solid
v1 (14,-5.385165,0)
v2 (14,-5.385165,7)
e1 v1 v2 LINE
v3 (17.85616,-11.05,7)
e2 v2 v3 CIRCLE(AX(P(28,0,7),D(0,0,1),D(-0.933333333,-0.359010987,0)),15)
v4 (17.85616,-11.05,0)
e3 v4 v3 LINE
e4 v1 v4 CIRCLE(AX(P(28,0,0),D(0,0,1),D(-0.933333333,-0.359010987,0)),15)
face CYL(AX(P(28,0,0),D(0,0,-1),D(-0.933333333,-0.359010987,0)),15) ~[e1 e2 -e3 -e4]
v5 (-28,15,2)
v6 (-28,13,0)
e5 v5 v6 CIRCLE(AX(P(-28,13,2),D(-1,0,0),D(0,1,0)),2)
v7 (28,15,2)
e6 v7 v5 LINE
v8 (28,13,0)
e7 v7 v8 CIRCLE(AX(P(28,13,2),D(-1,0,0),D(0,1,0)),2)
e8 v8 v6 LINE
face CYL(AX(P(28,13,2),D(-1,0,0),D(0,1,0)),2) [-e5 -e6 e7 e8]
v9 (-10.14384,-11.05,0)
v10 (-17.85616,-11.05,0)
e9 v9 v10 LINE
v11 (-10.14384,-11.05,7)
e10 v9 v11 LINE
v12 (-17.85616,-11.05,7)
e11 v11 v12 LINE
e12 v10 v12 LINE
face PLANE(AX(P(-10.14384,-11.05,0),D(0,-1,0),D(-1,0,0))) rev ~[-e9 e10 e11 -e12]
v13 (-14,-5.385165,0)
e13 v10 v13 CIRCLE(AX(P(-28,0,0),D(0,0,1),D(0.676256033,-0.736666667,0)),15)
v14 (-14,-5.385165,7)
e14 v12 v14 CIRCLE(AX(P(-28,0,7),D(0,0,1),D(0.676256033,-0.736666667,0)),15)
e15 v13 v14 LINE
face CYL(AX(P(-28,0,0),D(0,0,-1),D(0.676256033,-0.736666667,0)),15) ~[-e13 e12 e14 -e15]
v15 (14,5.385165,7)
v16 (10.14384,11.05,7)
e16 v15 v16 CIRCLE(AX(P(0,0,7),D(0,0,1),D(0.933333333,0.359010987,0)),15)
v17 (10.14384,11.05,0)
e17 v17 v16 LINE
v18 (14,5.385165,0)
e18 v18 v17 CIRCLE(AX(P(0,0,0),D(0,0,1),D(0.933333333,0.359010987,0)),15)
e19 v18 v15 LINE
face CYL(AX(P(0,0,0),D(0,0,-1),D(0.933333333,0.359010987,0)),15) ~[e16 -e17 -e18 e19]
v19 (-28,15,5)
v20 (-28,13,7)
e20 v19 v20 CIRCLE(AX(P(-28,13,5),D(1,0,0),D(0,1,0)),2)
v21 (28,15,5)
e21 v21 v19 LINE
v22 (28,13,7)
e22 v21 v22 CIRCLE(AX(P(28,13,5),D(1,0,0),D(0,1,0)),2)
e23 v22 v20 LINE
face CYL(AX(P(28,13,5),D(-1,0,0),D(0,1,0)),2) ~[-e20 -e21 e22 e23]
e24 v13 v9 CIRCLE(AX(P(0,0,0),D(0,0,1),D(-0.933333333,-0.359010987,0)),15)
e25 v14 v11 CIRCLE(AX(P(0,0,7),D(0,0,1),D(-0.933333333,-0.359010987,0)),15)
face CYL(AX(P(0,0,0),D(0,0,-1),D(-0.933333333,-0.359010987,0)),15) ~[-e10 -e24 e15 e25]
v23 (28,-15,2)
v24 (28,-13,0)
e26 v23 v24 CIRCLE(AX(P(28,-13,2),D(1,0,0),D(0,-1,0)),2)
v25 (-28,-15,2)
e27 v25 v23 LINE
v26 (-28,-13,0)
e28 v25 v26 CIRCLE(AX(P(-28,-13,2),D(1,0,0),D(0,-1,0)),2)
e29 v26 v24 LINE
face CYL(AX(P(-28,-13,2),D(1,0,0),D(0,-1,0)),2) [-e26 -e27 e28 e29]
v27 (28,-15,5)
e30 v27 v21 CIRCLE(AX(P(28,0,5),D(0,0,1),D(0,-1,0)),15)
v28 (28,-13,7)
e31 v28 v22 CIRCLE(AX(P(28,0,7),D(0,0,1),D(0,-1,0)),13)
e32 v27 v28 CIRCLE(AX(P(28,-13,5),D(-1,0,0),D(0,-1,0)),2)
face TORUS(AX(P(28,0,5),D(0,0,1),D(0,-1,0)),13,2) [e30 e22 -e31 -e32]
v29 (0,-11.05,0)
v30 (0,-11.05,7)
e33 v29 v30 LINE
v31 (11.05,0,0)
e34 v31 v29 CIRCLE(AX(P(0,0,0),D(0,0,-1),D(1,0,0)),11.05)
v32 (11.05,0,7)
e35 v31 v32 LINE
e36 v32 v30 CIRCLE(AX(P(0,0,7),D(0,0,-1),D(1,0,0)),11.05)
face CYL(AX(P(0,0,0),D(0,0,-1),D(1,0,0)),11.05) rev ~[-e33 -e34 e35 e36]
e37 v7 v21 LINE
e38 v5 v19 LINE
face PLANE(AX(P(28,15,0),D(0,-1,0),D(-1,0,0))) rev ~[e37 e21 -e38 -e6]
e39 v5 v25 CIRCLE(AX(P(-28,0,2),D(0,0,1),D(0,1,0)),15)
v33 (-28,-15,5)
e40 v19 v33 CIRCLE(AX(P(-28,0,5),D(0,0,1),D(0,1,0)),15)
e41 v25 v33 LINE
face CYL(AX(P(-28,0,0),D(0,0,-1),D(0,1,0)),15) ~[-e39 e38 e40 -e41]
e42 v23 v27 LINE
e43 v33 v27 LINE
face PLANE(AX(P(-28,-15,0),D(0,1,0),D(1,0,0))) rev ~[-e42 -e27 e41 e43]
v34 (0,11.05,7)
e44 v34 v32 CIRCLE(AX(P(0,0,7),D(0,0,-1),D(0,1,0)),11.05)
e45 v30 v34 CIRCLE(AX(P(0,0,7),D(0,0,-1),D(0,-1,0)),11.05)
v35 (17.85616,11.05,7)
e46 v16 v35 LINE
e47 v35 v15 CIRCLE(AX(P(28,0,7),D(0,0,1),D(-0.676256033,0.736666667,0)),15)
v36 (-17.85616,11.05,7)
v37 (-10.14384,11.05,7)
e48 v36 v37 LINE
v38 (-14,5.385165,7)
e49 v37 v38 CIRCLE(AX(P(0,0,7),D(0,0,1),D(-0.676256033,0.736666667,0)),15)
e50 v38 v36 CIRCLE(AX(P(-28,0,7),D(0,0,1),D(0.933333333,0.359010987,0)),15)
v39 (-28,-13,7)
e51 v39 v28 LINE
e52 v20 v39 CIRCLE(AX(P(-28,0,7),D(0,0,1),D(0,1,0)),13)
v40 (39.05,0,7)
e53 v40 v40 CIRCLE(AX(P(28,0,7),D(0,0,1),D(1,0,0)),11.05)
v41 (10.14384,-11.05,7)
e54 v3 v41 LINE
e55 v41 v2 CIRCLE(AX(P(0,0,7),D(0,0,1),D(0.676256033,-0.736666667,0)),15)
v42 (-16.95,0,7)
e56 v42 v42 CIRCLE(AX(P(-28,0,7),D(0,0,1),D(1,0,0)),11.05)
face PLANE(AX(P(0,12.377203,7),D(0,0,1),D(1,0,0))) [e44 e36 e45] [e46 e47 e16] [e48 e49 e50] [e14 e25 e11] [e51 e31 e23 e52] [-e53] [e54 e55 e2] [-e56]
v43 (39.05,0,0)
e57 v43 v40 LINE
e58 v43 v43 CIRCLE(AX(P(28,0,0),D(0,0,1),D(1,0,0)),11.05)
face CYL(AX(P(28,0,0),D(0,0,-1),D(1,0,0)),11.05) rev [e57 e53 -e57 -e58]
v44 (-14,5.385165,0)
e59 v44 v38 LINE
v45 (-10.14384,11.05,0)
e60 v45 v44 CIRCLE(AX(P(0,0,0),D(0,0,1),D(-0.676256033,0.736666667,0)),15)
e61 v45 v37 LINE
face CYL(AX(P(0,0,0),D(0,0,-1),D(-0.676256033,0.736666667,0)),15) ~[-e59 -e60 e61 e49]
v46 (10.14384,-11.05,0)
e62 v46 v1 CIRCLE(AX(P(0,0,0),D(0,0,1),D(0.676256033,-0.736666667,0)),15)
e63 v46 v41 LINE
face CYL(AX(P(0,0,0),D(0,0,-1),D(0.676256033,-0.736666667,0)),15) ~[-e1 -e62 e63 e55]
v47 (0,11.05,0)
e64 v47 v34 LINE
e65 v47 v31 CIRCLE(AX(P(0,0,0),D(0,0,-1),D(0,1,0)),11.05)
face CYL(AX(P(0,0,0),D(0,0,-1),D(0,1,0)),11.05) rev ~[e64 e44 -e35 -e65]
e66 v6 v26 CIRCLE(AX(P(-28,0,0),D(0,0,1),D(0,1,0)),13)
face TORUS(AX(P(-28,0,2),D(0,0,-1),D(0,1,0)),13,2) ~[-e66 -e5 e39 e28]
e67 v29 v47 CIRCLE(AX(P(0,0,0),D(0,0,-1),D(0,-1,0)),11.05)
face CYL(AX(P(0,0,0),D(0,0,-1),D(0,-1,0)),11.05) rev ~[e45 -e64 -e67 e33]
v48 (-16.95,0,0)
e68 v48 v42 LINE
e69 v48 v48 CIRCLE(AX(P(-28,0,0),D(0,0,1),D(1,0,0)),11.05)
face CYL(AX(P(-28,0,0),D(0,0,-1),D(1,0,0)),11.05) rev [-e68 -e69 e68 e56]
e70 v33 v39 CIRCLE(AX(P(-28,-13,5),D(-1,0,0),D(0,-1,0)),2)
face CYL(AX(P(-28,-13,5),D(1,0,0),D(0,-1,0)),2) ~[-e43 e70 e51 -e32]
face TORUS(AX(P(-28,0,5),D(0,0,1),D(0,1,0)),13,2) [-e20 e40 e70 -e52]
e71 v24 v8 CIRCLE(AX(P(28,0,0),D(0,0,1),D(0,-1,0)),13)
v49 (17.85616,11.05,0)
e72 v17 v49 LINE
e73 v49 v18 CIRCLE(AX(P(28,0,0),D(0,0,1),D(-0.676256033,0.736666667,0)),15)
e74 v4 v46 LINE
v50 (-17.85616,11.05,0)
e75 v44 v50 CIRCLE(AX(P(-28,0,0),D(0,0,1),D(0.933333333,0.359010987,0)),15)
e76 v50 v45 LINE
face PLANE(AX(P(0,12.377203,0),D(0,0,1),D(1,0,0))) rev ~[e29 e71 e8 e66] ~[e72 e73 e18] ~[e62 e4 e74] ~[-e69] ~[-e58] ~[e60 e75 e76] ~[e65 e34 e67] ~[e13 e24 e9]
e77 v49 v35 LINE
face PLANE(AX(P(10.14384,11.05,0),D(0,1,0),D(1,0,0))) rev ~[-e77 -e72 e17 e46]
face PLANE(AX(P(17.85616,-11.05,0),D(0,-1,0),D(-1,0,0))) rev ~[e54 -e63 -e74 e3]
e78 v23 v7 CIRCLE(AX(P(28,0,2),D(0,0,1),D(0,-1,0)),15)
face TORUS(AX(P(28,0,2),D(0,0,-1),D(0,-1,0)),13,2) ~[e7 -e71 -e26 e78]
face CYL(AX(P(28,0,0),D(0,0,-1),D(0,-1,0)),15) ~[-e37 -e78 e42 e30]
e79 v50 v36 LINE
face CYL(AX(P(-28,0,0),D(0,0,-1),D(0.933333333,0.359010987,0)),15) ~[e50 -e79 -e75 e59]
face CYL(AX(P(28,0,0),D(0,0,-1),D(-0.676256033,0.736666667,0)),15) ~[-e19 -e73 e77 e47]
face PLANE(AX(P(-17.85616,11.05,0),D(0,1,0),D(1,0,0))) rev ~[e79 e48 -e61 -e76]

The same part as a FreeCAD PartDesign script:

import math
import FreeCAD as App
import Part
import Sketcher
from FreeCAD import Vector


def edges_at(feature, points):
    """Names of the edges that pass closest to the given points."""
    edges = feature.Shape.Edges
    near = lambda p: min(range(len(edges)), key=lambda i: edges[i].distToShape(Part.Vertex(*p))[0])
    return sorted({f"Edge{near(p) + 1}" for p in points})

doc = App.newDocument("Part")
body = doc.addObject("PartDesign::Body", "Body")

sketch1 = body.newObject("Sketcher::SketchObject", "Sketch")
sketch1.AttachmentSupport = (doc.getObject("XY_Plane"), [""])
sketch1.MapMode = "FlatFace"
sketch1.addGeometry([
    Part.LineSegment(Vector(28, 15, 0), Vector(-28, 15, 0)),
    Part.ArcOfCircle(Part.Circle(Vector(-28, 0, 0), Vector(0, 0, 1), 15), math.radians(90), math.radians(270)),
    Part.LineSegment(Vector(-28, -15, 0), Vector(28, -15, 0)),
    Part.ArcOfCircle(Part.Circle(Vector(28, 0, 0), Vector(0, 0, 1), 15), math.radians(-90), math.radians(90)),
    Part.LineSegment(Vector(-10.14384, -11.05, 0), Vector(-17.85616, -11.05, 0)),
    Part.ArcOfCircle(Part.Circle(Vector(-28, 0, 0), Vector(0, 0, 1), 15), math.radians(-47.448236), math.radians(-21.03947)),
    Part.ArcOfCircle(Part.Circle(Vector(0, 0, 0), Vector(0, 0, 1), 15), math.radians(-158.96053), math.radians(-132.551764)),
    Part.ArcOfCircle(Part.Circle(Vector(0, 0, 0), Vector(0, 0, 1), 15), math.radians(-47.448236), math.radians(-21.03947)),
    Part.ArcOfCircle(Part.Circle(Vector(28, 0, 0), Vector(0, 0, 1), 15), math.radians(-158.96053), math.radians(-132.551764)),
    Part.LineSegment(Vector(17.85616, -11.05, 0), Vector(10.14384, -11.05, 0)),
    Part.Circle(Vector(-28, 0, 0), Vector(0, 0, 1), 11.05),
    Part.LineSegment(Vector(-17.85616, 11.05, 0), Vector(-10.14384, 11.05, 0)),
    Part.ArcOfCircle(Part.Circle(Vector(0, 0, 0), Vector(0, 0, 1), 15), math.radians(132.551764), math.radians(158.96053)),
    Part.ArcOfCircle(Part.Circle(Vector(-28, 0, 0), Vector(0, 0, 1), 15), math.radians(21.03947), math.radians(47.448236)),
    Part.ArcOfCircle(Part.Circle(Vector(0, 0, 0), Vector(0, 0, 1), 11.05), math.radians(90), math.radians(270)),
    Part.ArcOfCircle(Part.Circle(Vector(0, 0, 0), Vector(0, 0, 1), 11.05), math.radians(0), math.radians(90)),
    Part.ArcOfCircle(Part.Circle(Vector(0, 0, 0), Vector(0, 0, 1), 11.05), math.radians(-90), math.radians(0)),
    Part.Circle(Vector(28, 0, 0), Vector(0, 0, 1), 11.05),
    Part.ArcOfCircle(Part.Circle(Vector(28, 0, 0), Vector(0, 0, 1), 15), math.radians(132.551764), math.radians(158.96053)),
    Part.ArcOfCircle(Part.Circle(Vector(0, 0, 0), Vector(0, 0, 1), 15), math.radians(21.03947), math.radians(47.448236)),
    Part.LineSegment(Vector(10.14384, 11.05, 0), Vector(17.85616, 11.05, 0)),
], False)
sketch1.addConstraint([
    Sketcher.Constraint("Tangent", 0, 2, 1, 1),
    Sketcher.Constraint("Tangent", 1, 2, 2, 1),
    Sketcher.Constraint("Tangent", 2, 2, 3, 1),
    Sketcher.Constraint("Tangent", 3, 2, 0, 1),
    Sketcher.Constraint("Coincident", 4, 2, 5, 1),
    Sketcher.Constraint("Coincident", 5, 2, 6, 1),
    Sketcher.Constraint("Coincident", 6, 2, 4, 1),
    Sketcher.Constraint("Coincident", 7, 2, 8, 1),
    Sketcher.Constraint("Coincident", 8, 2, 9, 1),
    Sketcher.Constraint("Coincident", 9, 2, 7, 1),
    Sketcher.Constraint("Coincident", 11, 2, 12, 1),
    Sketcher.Constraint("Coincident", 12, 2, 13, 1),
    Sketcher.Constraint("Coincident", 13, 2, 11, 1),
    Sketcher.Constraint("Tangent", 14, 1, 15, 2),
    Sketcher.Constraint("Tangent", 15, 1, 16, 2),
    Sketcher.Constraint("Tangent", 16, 1, 14, 2),
    Sketcher.Constraint("Coincident", 18, 2, 19, 1),
    Sketcher.Constraint("Coincident", 19, 2, 20, 1),
    Sketcher.Constraint("Coincident", 20, 2, 18, 1),
    Sketcher.Constraint("Horizontal", 0),
    Sketcher.Constraint("Horizontal", 2),
    Sketcher.Constraint("Horizontal", 4),
    Sketcher.Constraint("Horizontal", 9),
    Sketcher.Constraint("Horizontal", 11),
    Sketcher.Constraint("Horizontal", 20),
    Sketcher.Constraint("Coincident", 6, 3, -1, 1),
    Sketcher.Constraint("Coincident", 7, 3, -1, 1),
    Sketcher.Constraint("Coincident", 12, 3, -1, 1),
    Sketcher.Constraint("Coincident", 14, 3, -1, 1),
    Sketcher.Constraint("Coincident", 19, 3, -1, 1),
    Sketcher.Constraint("Coincident", 5, 3, 1, 3),
    Sketcher.Constraint("Coincident", 8, 3, 3, 3),
    Sketcher.Constraint("Coincident", 10, 3, 1, 3),
    Sketcher.Constraint("Coincident", 13, 3, 1, 3),
    Sketcher.Constraint("Coincident", 17, 3, 3, 3),
    Sketcher.Constraint("Coincident", 18, 3, 3, 3),
    Sketcher.Constraint("Equal", 3, 5),
    Sketcher.Constraint("Equal", 5, 6),
    Sketcher.Constraint("Equal", 6, 7),
    Sketcher.Constraint("Equal", 7, 8),
    Sketcher.Constraint("Equal", 8, 12),
    Sketcher.Constraint("Equal", 12, 13),
    Sketcher.Constraint("Equal", 10, 14),
    Sketcher.Constraint("Equal", 16, 17),
    Sketcher.Constraint("Equal", 13, 18),
    Sketcher.Constraint("Equal", 18, 19),
    Sketcher.Constraint("Symmetric", 1, 3, 3, 3, -1, 1),
    Sketcher.Constraint("PointOnObject", 14, 1, -2),
    Sketcher.Constraint("PointOnObject", 15, 1, -1),
    Sketcher.Constraint("PointOnObject", 16, 1, -2),
    Sketcher.Constraint("Horizontal", 6, 2, 8, 2),
    Sketcher.Constraint("Horizontal", 13, 2, 14, 1),
    Sketcher.Constraint("Horizontal", 9, 2, 16, 1),
    Sketcher.Constraint("Horizontal", 14, 1, 19, 2),
    Sketcher.Constraint("Radius", 1, 15.0),
    Sketcher.Constraint("Diameter", 10, 22.1),
    Sketcher.Constraint("DistanceX", 0, 2, 0, 1, 56.0),
])
pad1 = body.newObject("PartDesign::Pad", "Pad")
pad1.Profile = sketch1
pad1.Length = 7
doc.recompute()

fillet = body.newObject("PartDesign::Fillet", "Fillet")
fillet.Base = (pad1, edges_at(pad1, [(0, 15, 7), (0, -15, 0)]))
fillet.Radius = 2

doc.recompute()
